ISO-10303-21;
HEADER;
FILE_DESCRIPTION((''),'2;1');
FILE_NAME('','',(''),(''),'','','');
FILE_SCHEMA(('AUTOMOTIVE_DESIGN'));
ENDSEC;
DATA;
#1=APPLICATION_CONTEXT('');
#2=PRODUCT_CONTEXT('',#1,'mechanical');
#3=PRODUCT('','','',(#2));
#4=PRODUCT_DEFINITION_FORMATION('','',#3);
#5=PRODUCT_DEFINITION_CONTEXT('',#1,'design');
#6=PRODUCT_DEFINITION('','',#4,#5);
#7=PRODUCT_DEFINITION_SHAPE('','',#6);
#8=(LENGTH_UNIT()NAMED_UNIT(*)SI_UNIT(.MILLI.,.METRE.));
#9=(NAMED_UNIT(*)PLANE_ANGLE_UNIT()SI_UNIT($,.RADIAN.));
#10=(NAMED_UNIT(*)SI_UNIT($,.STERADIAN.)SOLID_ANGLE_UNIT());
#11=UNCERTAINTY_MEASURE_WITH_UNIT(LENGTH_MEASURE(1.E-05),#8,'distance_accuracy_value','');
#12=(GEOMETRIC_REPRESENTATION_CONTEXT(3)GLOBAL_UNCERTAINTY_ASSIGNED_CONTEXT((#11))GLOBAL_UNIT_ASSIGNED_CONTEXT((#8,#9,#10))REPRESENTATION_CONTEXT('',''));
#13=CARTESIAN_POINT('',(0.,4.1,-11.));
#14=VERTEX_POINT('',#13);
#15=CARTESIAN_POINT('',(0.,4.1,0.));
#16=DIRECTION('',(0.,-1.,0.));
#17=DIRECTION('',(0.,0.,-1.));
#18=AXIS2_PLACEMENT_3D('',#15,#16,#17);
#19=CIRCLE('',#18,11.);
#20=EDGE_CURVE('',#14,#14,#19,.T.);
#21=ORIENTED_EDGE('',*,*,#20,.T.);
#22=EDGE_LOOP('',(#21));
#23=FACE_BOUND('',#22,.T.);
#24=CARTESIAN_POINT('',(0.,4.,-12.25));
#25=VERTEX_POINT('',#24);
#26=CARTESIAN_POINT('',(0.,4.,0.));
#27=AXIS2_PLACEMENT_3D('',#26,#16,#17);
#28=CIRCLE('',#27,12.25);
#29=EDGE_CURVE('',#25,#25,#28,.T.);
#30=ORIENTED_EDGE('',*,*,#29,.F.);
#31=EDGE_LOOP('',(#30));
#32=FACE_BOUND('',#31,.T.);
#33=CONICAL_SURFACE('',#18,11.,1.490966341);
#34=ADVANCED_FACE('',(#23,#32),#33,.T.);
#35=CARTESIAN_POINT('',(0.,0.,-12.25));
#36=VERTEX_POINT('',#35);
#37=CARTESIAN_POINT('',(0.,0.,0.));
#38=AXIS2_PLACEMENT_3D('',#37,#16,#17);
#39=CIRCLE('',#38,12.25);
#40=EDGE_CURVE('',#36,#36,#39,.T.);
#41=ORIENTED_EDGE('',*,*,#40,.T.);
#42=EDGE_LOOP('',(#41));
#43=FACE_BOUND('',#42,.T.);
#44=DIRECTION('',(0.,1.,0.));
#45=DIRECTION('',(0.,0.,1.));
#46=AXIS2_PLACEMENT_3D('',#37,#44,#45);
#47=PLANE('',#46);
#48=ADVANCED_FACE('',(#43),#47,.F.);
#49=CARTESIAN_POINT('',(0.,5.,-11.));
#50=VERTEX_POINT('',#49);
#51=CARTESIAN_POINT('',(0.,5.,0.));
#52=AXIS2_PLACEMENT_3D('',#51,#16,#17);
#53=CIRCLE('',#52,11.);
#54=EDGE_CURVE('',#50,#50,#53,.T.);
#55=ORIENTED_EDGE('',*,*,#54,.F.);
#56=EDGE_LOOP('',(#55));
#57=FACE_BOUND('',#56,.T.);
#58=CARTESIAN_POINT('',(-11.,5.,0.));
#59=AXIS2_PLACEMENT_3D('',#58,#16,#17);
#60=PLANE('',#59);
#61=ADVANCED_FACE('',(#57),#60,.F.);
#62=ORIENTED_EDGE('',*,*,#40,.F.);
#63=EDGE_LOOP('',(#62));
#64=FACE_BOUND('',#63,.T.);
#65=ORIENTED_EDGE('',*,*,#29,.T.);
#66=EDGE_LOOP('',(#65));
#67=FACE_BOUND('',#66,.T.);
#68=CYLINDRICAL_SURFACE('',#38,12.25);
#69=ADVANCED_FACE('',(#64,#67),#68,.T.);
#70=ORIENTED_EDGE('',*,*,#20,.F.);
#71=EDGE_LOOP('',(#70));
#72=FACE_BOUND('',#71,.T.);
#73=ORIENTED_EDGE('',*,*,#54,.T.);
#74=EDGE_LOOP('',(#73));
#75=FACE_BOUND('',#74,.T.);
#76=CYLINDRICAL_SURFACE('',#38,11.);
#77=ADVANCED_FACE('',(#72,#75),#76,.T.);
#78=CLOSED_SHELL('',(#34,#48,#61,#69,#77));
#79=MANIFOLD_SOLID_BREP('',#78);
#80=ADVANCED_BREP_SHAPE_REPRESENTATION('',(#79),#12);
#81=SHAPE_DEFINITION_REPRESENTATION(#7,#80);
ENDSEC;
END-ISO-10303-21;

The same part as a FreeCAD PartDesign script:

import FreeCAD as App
import Part
import Sketcher
from FreeCAD import Vector
Q = App.Units.Quantity

doc = App.newDocument("Part")
body = doc.addObject("PartDesign::Body", "Body")

# Sketch on XY plane
sketch1 = body.newObject("Sketcher::SketchObject", "Sketch")
sketch1.AttachmentSupport = (doc.getObject("XY_Plane"), [""])
sketch1.MapMode = "FlatFace"
sketch1.addGeometry(Part.LineSegment(Vector(-11, 5, 0), Vector(-11, 0, 0)), False)
sketch1.addGeometry(Part.LineSegment(Vector(-11, 0, 0), Vector(0, 0, 0)), False)
sketch1.addGeometry(Part.LineSegment(Vector(0, 0, 0), Vector(0, 5, 0)), False)
sketch1.addGeometry(Part.LineSegment(Vector(0, 5, 0), Vector(-11, 5, 0)), False)
sketch1.addConstraint(Sketcher.Constraint("Coincident", 0, 2, 1, 1))
sketch1.addConstraint(Sketcher.Constraint("Coincident", 1, 2, 2, 1))
sketch1.addConstraint(Sketcher.Constraint("Coincident", 2, 2, 3, 1))
sketch1.addConstraint(Sketcher.Constraint("Coincident", 3, 2, 0, 1))
sketch1.addConstraint(Sketcher.Constraint("Vertical", 0))
sketch1.addConstraint(Sketcher.Constraint("Horizontal", 1))
sketch1.addConstraint(Sketcher.Constraint("Vertical", 2))
sketch1.addConstraint(Sketcher.Constraint("Horizontal", 3))
sketch1.addConstraint(Sketcher.Constraint("Coincident", 1, 2, -1, 1))
sketch1.addConstraint(Sketcher.Constraint("DistanceX", 1, 1, 1, 2, Q("11 mm")))
sketch1.addConstraint(Sketcher.Constraint("DistanceY", 0, 2, 0, 1, Q("5 mm")))
revolution = body.newObject("PartDesign::Revolution", "Revolution")
revolution.Profile = sketch1
revolution.ReferenceAxis = (sketch1, ["V_Axis"])
revolution.Angle = 360

# Sketch on XY plane
sketch2 = body.newObject("Sketcher::SketchObject", "Sketch001")
sketch2.AttachmentSupport = (doc.getObject("XY_Plane"), [""])
sketch2.MapMode = "FlatFace"
sketch2.addGeometry(Part.LineSegment(Vector(-12.2, 0, 0), Vector(-11, 0, 0)), False)
sketch2.addGeometry(Part.LineSegment(Vector(-11, 0, 0), Vector(-11, 4.1, 0)), False)
sketch2.addGeometry(Part.LineSegment(Vector(-11, 4.1, 0), Vector(-12.2, 4, 0)), False)
sketch2.addGeometry(Part.LineSegment(Vector(-12.2, 4, 0), Vector(-12.2, 0, 0)), False)
sketch2.addConstraint(Sketcher.Constraint("Coincident", 0, 2, 1, 1))
sketch2.addConstraint(Sketcher.Constraint("Coincident", 1, 2, 2, 1))
sketch2.addConstraint(Sketcher.Constraint("Coincident", 2, 2, 3, 1))
sketch2.addConstraint(Sketcher.Constraint("Coincident", 3, 2, 0, 1))
sketch2.addConstraint(Sketcher.Constraint("Horizontal", 0))
sketch2.addConstraint(Sketcher.Constraint("Vertical", 1))
sketch2.addConstraint(Sketcher.Constraint("Vertical", 3))
sketch2.addConstraint(Sketcher.Constraint("PointOnObject", 0, 2, -1))
sketch2.addConstraint(Sketcher.Constraint("DistanceY", 3, 2, 3, 1, Q("4 mm")))
sketch2.addConstraint(Sketcher.Constraint("DistanceY", 1, 1, 1, 2, Q("4.1 mm")))
sketch2.addConstraint(Sketcher.Constraint("DistanceX", 0, 2, -1, 1, Q("11 mm")))
sketch2.addConstraint(Sketcher.Constraint("DistanceX", 0, 1, 0, 2, Q("1.25 mm")))
revolution2 = body.newObject("PartDesign::Revolution", "Revolution001")
revolution2.Profile = sketch2
revolution2.ReferenceAxis = (sketch2, ["V_Axis"])
revolution2.Angle = 360

doc.recompute()
